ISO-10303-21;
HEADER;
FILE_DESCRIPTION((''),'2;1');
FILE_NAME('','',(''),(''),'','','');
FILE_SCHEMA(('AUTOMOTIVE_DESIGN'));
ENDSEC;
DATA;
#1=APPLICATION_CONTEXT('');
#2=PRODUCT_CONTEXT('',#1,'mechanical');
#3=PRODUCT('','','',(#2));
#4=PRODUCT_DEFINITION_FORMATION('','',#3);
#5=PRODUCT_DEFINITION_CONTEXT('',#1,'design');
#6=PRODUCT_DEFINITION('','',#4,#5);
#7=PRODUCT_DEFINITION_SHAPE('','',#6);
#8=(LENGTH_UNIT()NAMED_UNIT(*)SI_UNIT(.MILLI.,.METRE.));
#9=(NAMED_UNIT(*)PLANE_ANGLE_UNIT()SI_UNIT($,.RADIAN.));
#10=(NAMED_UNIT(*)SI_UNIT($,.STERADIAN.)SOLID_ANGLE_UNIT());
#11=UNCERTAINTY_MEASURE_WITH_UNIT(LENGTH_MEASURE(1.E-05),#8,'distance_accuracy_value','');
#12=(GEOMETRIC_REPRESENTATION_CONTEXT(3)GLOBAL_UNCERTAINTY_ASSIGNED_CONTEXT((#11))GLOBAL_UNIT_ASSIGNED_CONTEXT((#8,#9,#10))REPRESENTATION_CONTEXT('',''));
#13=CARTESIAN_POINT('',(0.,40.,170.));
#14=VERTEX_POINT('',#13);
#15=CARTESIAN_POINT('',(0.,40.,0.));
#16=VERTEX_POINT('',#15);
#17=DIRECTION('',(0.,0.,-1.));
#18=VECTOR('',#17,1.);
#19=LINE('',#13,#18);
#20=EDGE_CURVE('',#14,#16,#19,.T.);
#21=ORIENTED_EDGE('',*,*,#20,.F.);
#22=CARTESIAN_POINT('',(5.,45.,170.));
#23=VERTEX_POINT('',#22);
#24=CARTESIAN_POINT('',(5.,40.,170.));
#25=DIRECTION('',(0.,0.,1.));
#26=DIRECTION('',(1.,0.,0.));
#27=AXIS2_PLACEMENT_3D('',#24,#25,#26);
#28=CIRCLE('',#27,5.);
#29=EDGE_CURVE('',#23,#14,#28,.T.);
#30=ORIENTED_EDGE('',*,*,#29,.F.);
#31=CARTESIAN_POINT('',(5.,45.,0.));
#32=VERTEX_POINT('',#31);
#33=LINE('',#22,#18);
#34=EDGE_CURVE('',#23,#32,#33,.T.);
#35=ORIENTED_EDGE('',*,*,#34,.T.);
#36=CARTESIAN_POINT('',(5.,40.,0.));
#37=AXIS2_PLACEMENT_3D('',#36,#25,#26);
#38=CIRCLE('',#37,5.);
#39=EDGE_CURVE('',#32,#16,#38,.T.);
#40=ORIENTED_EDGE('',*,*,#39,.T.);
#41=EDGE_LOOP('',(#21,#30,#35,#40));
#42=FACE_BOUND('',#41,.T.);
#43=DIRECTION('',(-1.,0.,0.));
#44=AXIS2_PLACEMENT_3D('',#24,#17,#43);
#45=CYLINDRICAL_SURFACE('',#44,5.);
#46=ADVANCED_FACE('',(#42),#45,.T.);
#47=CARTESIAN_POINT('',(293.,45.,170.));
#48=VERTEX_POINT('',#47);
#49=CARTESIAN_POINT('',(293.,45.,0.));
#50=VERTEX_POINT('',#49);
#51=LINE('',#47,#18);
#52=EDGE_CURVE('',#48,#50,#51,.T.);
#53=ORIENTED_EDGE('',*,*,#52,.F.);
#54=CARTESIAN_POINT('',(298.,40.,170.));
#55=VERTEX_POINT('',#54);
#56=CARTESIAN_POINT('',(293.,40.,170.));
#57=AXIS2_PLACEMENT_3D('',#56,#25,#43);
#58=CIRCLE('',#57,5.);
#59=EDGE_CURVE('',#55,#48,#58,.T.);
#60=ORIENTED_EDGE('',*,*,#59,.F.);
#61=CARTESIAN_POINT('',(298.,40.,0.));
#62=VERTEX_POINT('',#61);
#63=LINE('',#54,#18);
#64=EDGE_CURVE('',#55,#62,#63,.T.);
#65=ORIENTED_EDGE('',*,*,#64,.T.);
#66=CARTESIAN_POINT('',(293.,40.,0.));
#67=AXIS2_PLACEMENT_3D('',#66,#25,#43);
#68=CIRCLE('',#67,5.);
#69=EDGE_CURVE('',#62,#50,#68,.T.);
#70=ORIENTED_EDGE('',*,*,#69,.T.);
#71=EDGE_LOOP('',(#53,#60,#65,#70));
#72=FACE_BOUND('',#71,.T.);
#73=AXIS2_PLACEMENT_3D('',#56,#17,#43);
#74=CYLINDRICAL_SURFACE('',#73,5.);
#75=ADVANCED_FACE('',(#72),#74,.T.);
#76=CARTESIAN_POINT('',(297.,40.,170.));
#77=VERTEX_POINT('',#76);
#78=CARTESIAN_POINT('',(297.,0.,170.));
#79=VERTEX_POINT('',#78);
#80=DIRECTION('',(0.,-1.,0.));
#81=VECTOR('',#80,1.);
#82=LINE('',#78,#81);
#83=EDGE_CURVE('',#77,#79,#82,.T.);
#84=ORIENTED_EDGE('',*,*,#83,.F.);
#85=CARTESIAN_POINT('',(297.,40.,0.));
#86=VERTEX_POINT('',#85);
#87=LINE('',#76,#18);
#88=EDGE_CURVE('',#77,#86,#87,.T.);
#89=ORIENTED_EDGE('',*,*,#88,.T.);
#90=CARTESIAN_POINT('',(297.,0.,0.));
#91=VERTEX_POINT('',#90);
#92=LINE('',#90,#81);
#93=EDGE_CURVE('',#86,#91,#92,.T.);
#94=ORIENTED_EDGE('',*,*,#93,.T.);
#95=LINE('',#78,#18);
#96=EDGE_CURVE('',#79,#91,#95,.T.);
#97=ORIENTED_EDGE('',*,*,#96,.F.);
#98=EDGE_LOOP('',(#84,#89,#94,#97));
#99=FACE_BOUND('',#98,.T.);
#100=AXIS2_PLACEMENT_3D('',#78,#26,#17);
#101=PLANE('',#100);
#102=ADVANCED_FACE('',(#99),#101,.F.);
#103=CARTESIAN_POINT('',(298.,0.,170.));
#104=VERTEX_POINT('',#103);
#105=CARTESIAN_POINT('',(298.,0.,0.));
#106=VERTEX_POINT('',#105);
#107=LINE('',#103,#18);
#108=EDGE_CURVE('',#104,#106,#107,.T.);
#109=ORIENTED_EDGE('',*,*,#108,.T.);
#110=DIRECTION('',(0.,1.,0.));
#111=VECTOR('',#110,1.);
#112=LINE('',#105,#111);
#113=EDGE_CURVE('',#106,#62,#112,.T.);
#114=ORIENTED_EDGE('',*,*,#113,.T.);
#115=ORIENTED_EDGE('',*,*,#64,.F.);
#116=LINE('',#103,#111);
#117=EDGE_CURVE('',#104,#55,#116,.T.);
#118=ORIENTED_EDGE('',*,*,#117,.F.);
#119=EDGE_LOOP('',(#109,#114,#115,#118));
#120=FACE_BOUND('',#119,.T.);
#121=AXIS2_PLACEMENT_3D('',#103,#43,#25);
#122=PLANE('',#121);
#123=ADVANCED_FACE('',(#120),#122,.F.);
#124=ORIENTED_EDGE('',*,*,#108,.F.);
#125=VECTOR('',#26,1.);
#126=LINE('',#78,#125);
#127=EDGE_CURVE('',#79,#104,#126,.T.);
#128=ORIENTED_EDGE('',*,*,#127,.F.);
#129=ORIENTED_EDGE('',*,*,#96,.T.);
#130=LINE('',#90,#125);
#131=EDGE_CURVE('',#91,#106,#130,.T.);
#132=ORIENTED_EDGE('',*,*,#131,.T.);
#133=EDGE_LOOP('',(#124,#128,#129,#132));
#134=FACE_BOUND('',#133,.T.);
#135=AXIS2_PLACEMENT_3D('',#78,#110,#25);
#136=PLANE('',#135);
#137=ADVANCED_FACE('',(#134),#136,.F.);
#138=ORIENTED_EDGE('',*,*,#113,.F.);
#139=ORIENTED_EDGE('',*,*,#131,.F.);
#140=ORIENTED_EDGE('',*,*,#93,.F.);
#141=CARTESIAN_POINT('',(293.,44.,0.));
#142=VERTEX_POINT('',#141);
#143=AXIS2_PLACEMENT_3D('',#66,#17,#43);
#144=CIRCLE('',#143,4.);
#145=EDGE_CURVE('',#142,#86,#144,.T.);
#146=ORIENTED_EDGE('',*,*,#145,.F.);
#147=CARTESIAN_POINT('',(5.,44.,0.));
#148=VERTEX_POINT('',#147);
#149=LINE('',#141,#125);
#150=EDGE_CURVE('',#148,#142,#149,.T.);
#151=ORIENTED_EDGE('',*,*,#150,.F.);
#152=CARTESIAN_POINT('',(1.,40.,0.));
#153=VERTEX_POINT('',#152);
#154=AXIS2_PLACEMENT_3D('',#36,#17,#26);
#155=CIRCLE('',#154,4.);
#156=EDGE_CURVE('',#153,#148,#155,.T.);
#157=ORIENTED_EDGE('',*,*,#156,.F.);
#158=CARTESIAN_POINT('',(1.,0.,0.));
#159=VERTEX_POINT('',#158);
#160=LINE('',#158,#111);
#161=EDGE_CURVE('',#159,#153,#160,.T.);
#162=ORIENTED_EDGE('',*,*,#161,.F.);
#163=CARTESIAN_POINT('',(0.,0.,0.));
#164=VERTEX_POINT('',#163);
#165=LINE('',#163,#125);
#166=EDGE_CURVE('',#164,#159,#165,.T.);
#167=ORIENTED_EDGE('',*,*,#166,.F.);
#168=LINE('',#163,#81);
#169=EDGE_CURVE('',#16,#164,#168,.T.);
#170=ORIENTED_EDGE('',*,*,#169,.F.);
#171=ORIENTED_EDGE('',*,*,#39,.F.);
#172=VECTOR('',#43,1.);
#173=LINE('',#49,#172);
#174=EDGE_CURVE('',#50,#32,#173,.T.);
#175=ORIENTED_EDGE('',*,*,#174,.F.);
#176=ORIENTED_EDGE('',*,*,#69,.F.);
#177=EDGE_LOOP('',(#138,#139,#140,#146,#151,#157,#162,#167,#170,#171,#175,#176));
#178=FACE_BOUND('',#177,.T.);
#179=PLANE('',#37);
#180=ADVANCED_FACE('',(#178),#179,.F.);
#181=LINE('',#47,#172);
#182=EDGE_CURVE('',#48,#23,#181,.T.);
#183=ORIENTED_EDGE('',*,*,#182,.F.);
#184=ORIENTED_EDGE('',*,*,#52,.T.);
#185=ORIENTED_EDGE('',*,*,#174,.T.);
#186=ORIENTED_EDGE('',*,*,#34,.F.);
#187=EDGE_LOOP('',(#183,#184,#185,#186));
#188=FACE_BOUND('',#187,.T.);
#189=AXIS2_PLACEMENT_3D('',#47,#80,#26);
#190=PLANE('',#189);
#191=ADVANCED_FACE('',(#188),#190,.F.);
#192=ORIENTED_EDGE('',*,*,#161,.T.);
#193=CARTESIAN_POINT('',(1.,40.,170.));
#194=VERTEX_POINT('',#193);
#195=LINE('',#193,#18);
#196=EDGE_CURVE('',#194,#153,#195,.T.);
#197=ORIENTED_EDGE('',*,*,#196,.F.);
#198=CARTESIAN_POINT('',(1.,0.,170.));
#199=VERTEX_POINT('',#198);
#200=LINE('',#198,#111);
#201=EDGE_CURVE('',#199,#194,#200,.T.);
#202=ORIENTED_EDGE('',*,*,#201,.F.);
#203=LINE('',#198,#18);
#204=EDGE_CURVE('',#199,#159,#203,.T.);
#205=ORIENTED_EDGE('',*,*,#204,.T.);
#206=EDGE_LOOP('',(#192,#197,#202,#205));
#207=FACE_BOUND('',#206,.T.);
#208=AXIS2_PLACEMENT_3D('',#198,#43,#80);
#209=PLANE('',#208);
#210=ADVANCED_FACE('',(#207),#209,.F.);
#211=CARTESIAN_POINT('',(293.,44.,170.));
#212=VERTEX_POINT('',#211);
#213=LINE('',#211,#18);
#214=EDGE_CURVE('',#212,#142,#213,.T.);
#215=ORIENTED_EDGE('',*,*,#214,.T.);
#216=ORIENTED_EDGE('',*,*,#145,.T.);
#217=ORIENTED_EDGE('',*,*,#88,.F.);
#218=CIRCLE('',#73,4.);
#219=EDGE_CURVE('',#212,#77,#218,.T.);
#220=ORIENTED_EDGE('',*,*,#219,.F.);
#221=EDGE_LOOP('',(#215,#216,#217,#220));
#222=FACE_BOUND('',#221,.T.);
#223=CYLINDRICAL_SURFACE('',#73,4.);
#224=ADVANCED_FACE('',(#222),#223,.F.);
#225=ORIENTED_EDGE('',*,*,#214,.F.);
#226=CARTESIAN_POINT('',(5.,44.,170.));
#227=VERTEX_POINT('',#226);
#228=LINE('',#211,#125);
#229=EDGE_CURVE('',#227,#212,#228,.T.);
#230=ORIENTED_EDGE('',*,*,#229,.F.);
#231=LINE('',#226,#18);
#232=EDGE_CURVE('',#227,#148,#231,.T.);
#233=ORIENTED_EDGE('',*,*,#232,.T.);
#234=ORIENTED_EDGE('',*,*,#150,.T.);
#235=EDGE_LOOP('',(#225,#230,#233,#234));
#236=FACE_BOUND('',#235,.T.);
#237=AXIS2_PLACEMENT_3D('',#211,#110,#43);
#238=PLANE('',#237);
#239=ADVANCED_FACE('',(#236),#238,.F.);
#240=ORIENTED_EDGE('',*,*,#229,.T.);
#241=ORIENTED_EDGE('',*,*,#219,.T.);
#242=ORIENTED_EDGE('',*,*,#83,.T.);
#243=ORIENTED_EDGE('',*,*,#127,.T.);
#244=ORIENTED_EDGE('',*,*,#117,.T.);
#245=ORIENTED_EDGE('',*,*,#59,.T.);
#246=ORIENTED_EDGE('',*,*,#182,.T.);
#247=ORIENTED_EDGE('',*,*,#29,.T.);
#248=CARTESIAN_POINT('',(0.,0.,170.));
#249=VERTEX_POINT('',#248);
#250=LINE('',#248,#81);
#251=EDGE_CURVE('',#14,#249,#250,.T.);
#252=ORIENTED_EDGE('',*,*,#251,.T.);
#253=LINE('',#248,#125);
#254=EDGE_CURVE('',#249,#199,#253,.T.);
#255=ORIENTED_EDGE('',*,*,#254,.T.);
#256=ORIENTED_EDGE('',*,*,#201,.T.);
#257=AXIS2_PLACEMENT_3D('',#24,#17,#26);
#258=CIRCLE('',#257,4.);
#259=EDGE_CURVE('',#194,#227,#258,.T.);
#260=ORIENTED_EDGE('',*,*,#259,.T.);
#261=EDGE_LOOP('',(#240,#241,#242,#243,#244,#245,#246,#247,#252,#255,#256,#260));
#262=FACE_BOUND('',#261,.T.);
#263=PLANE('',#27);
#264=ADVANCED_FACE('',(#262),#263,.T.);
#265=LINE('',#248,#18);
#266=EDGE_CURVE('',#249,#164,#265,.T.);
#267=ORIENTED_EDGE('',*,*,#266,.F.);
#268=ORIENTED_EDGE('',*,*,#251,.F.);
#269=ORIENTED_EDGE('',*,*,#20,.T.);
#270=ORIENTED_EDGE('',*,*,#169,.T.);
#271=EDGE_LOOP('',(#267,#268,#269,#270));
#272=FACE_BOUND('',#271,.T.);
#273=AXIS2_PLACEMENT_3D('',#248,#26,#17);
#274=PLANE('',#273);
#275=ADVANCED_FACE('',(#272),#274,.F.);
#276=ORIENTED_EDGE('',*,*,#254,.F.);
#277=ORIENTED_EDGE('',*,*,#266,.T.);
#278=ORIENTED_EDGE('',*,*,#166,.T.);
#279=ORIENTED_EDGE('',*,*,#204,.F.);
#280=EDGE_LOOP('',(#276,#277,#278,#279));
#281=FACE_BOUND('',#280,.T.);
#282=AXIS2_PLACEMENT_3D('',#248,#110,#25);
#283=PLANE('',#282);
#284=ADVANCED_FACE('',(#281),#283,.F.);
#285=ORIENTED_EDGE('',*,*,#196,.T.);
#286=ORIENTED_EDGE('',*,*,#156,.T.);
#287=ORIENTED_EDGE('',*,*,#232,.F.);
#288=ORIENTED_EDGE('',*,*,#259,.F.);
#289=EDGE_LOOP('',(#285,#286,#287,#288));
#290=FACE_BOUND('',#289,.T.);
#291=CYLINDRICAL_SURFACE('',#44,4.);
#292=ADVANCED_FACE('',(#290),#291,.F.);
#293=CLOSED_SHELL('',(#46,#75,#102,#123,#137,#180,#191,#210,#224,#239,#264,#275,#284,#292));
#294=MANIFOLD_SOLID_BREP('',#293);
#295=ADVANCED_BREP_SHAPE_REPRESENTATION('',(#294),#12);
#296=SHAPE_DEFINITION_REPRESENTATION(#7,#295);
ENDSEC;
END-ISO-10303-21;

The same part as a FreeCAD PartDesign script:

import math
import FreeCAD as App
import Part
import Sketcher
from FreeCAD import Vector
Q = App.Units.Quantity

doc = App.newDocument("Part")
body = doc.addObject("PartDesign::Body", "Body")

# Sketch on XY plane
sketch1 = body.newObject("Sketcher::SketchObject", "Sketch")
sketch1.AttachmentSupport = (doc.getObject("XY_Plane"), [""])
sketch1.MapMode = "FlatFace"
sketch1.addGeometry(Part.LineSegment(Vector(0, 40, 0), Vector(0, 0, 0)), False)
sketch1.addGeometry(Part.LineSegment(Vector(0, 0, 0), Vector(1, 0, 0)), False)
sketch1.addGeometry(Part.LineSegment(Vector(1, 0, 0), Vector(1, 40, 0)), False)
sketch1.addGeometry(Part.ArcOfCircle(Part.Circle(Vector(5, 40, 0), Vector(0, 0, 1), 4), math.radians(90), math.radians(180)), False)
sketch1.addGeometry(Part.LineSegment(Vector(5, 44, 0), Vector(293, 44, 0)), False)
sketch1.addGeometry(Part.ArcOfCircle(Part.Circle(Vector(293, 40, 0), Vector(0, 0, 1), 4), math.radians(0), math.radians(90)), False)
sketch1.addGeometry(Part.LineSegment(Vector(297, 40, 0), Vector(297, 0, 0)), False)
sketch1.addGeometry(Part.LineSegment(Vector(297, 0, 0), Vector(298, 0, 0)), False)
sketch1.addGeometry(Part.LineSegment(Vector(298, 0, 0), Vector(298, 40, 0)), False)
sketch1.addGeometry(Part.ArcOfCircle(Part.Circle(Vector(293, 40, 0), Vector(0, 0, 1), 5), math.radians(0), math.radians(90)), False)
sketch1.addGeometry(Part.LineSegment(Vector(293, 45, 0), Vector(5, 45, 0)), False)
sketch1.addGeometry(Part.ArcOfCircle(Part.Circle(Vector(5, 40, 0), Vector(0, 0, 1), 5), math.radians(90), math.radians(180)), False)
sketch1.addConstraint(Sketcher.Constraint("Coincident", 0, 2, 1, 1))
sketch1.addConstraint(Sketcher.Constraint("Coincident", 1, 2, 2, 1))
sketch1.addConstraint(Sketcher.Constraint("Tangent", 2, 2, 3, 2))
sketch1.addConstraint(Sketcher.Constraint("Tangent", 3, 1, 4, 1))
sketch1.addConstraint(Sketcher.Constraint("Tangent", 4, 2, 5, 2))
sketch1.addConstraint(Sketcher.Constraint("Tangent", 5, 1, 6, 1))
sketch1.addConstraint(Sketcher.Constraint("Coincident", 6, 2, 7, 1))
sketch1.addConstraint(Sketcher.Constraint("Coincident", 7, 2, 8, 1))
sketch1.addConstraint(Sketcher.Constraint("Tangent", 8, 2, 9, 1))
sketch1.addConstraint(Sketcher.Constraint("Tangent", 9, 2, 10, 1))
sketch1.addConstraint(Sketcher.Constraint("Tangent", 10, 2, 11, 1))
sketch1.addConstraint(Sketcher.Constraint("Tangent", 11, 2, 0, 1))
sketch1.addConstraint(Sketcher.Constraint("Vertical", 0))
sketch1.addConstraint(Sketcher.Constraint("Horizontal", 1))
sketch1.addConstraint(Sketcher.Constraint("Vertical", 2))
sketch1.addConstraint(Sketcher.Constraint("Horizontal", 4))
sketch1.addConstraint(Sketcher.Constraint("Vertical", 6))
sketch1.addConstraint(Sketcher.Constraint("Horizontal", 7))
sketch1.addConstraint(Sketcher.Constraint("Vertical", 8))
sketch1.addConstraint(Sketcher.Constraint("Horizontal", 10))
sketch1.addConstraint(Sketcher.Constraint("Coincident", 0, 2, -1, 1))
sketch1.addConstraint(Sketcher.Constraint("Coincident", 9, 3, 5, 3))
sketch1.addConstraint(Sketcher.Constraint("Coincident", 11, 3, 3, 3))
sketch1.addConstraint(Sketcher.Constraint("Equal", 3, 5))
sketch1.addConstraint(Sketcher.Constraint("PointOnObject", 6, 2, -1))
sketch1.addConstraint(Sketcher.Constraint("Radius", 3, Q("4 mm")))
sketch1.addConstraint(Sketcher.Constraint("Radius", 9, Q("5 mm")))
sketch1.addConstraint(Sketcher.Constraint("DistanceX", 4, 1, 4, 2, Q("288 mm")))
sketch1.addConstraint(Sketcher.Constraint("DistanceY", 0, 2, 0, 1, Q("40 mm")))
pad1 = body.newObject("PartDesign::Pad", "Pad")
pad1.Profile = sketch1
pad1.Length = 170

doc.recompute()
